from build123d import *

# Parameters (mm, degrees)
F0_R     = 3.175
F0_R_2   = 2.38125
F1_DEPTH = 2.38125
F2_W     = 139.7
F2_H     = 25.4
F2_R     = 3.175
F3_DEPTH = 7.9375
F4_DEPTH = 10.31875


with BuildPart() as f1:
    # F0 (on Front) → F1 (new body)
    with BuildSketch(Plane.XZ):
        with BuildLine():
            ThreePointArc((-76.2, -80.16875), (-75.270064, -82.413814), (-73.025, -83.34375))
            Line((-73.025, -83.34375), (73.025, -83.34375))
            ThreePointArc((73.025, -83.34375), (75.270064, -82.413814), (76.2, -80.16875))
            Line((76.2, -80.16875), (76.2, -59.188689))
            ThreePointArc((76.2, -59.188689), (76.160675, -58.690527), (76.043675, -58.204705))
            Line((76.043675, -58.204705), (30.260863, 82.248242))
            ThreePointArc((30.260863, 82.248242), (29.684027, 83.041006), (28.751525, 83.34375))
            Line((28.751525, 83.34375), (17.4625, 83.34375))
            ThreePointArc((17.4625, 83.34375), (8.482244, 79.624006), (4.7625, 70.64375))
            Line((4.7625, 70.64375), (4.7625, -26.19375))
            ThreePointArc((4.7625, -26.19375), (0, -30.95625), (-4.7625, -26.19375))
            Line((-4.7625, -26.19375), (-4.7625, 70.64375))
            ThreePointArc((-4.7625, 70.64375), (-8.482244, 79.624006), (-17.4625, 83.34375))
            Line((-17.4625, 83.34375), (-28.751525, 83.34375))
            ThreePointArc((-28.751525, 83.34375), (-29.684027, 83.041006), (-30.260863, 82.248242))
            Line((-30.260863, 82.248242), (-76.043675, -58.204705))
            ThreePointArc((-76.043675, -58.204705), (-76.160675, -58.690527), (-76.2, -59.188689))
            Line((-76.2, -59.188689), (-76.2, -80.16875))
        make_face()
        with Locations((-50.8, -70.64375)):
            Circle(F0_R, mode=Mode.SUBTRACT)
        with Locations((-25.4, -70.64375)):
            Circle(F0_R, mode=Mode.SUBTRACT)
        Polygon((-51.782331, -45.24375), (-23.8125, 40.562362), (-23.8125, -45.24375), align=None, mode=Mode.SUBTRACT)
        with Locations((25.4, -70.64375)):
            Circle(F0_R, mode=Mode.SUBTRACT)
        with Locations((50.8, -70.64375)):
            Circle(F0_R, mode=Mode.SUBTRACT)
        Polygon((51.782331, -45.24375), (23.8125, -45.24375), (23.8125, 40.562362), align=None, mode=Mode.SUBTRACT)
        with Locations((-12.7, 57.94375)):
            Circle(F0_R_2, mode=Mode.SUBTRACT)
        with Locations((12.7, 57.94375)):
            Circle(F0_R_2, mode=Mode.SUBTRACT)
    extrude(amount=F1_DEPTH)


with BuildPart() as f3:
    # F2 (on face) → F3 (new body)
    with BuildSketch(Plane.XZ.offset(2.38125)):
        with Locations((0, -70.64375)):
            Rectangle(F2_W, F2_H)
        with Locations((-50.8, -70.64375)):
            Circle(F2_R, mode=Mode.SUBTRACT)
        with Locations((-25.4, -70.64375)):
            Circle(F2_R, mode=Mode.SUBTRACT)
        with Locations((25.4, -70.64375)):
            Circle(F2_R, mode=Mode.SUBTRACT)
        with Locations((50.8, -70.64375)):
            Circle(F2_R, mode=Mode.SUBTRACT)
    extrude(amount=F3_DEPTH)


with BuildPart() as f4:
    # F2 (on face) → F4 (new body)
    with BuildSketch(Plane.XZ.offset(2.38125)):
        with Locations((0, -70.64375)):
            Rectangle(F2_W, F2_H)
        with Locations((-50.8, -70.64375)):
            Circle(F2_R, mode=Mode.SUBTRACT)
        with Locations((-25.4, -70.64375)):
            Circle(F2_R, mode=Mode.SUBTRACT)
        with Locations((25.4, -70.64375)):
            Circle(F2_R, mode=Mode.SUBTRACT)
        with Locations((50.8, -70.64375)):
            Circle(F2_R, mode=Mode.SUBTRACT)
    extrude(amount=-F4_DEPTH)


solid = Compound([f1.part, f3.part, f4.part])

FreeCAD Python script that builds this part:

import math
import FreeCAD as App
import Part
import Sketcher

V = App.Vector
Q = App.Units.Quantity


def add_polygon(sketch, points):
    """Adds a closed chain of lines whose ends are joined by coincident constraints."""
    first, n = sketch.GeometryCount, len(points)
    for a, b in zip(points, points[1:] + points[:1]):
        sketch.addGeometry(Part.LineSegment(App.Vector(*a, 0), App.Vector(*b, 0)), False)
    for i in range(n):
        sketch.addConstraint(Sketcher.Constraint("Coincident", first + i, 2, first + (i + 1) % n, 1))

doc = App.newDocument("Part")
body = doc.addObject("PartDesign::Body", "Body")

# Sketch on XZ plane
sketch1 = body.newObject("Sketcher::SketchObject", "Sketch")
sketch1.AttachmentSupport = (doc.getObject("XZ_Plane"), [""])
sketch1.MapMode = "FlatFace"
sketch1.addGeometry(Part.ArcOfCircle(Part.Circle(V(-73, -80.2, 0), V(0, 0, 1), 3.2), math.radians(-180), math.radians(-90)), False)  # 0
sketch1.addGeometry(Part.LineSegment(V(-73, -83.3, 0), V(73, -83.3, 0)), False)  # 1
sketch1.addGeometry(Part.ArcOfCircle(Part.Circle(V(73, -80.2, 0), V(0, 0, 1), 3.2), math.radians(-90), math.radians(0)), False)  # 2
sketch1.addGeometry(Part.LineSegment(V(76.2, -80.2, 0), V(76.2, -59.2, 0)), False)  # 3
sketch1.addGeometry(Part.ArcOfCircle(Part.Circle(V(73, -59.2, 0), V(0, 0, 1), 3.2), math.radians(0), math.radians(18.05)), False)  # 4
sketch1.addGeometry(Part.LineSegment(V(76, -58.2, 0), V(30.3, 82.2, 0)), False)  # 5
sketch1.addGeometry(Part.ArcOfCircle(Part.Circle(V(28.8, 81.8, 0), V(0, 0, 1), 1.6), math.radians(18), math.radians(90)), False)  # 6
sketch1.addGeometry(Part.LineSegment(V(28.8, 83.3, 0), V(17.5, 83.3, 0)), False)  # 7
sketch1.addGeometry(Part.ArcOfCircle(Part.Circle(V(17.5, 70.6, 0), V(0, 0, 1), 12.7), math.radians(90), math.radians(180)), False)  # 8
sketch1.addGeometry(Part.LineSegment(V(4.8, 70.6, 0), V(4.8, -26.2, 0)), False)  # 9
sketch1.addGeometry(Part.ArcOfCircle(Part.Circle(V(0, -26.2, 0), V(0, 0, 1), 4.8), math.radians(180), math.radians(360)), False)  # 10
sketch1.addGeometry(Part.LineSegment(V(-4.8, -26.2, 0), V(-4.8, 70.6, 0)), False)  # 11
sketch1.addGeometry(Part.ArcOfCircle(Part.Circle(V(-17.5, 70.6, 0), V(0, 0, 1), 12.7), math.radians(0), math.radians(90)), False)  # 12
sketch1.addGeometry(Part.LineSegment(V(-17.5, 83.3, 0), V(-28.8, 83.3, 0)), False)  # 13
sketch1.addGeometry(Part.ArcOfCircle(Part.Circle(V(-28.8, 81.8, 0), V(0, 0, 1), 1.6), math.radians(90), math.radians(162)), False)  # 14
sketch1.addGeometry(Part.LineSegment(V(-30.3, 82.2, 0), V(-76, -58.2, 0)), False)  # 15
sketch1.addGeometry(Part.ArcOfCircle(Part.Circle(V(-73, -59.2, 0), V(0, 0, 1), 3.2), math.radians(161.95), math.radians(180)), False)  # 16
sketch1.addGeometry(Part.LineSegment(V(-76.2, -59.2, 0), V(-76.2, -80.2, 0)), False)  # 17
sketch1.addGeometry(Part.Circle(V(-50.8, -70.6, 0), V(0, 0, 1), 3.2), False)  # 18
sketch1.addGeometry(Part.Circle(V(-25.4, -70.6, 0), V(0, 0, 1), 3.2), False)  # 19
sketch1.addGeometry(Part.Circle(V(25.4, -70.6, 0), V(0, 0, 1), 3.2), False)  # 20
sketch1.addGeometry(Part.Circle(V(50.8, -70.6, 0), V(0, 0, 1), 3.2), False)  # 21
add_polygon(sketch1, [(-23.8, -45.2), (-51.8, -45.2), (-23.8, 40.6)])  # lines 22-24
sketch1.addGeometry(Part.Circle(V(-12.7, 57.9, 0), V(0, 0, 1), 2.4), False)  # 25
add_polygon(sketch1, [(23.8, 40.6), (51.8, -45.2), (23.8, -45.2)])  # lines 26-28
sketch1.addGeometry(Part.Circle(V(12.7, 57.9, 0), V(0, 0, 1), 2.4), False)  # 29
sketch1.addConstraint([
    Sketcher.Constraint("Tangent", 0, 2, 1, 1),
    Sketcher.Constraint("Tangent", 1, 2, 2, 1),
    Sketcher.Constraint("Tangent", 2, 2, 3, 1),
    Sketcher.Constraint("Tangent", 3, 2, 4, 1),
    Sketcher.Constraint("Tangent", 4, 2, 5, 1),
    Sketcher.Constraint("Tangent", 5, 2, 6, 1),
    Sketcher.Constraint("Tangent", 6, 2, 7, 1),
    Sketcher.Constraint("Tangent", 7, 2, 8, 1),
    Sketcher.Constraint("Tangent", 8, 2, 9, 1),
    Sketcher.Constraint("Tangent", 9, 2, 10, 2),
    Sketcher.Constraint("Tangent", 10, 1, 11, 1),
    Sketcher.Constraint("Tangent", 11, 2, 12, 1),
    Sketcher.Constraint("Tangent", 12, 2, 13, 1),
    Sketcher.Constraint("Tangent", 13, 2, 14, 1),
    Sketcher.Constraint("Tangent", 14, 2, 15, 1),
    Sketcher.Constraint("Tangent", 15, 2, 16, 1),
    Sketcher.Constraint("Tangent", 16, 2, 17, 1),
    Sketcher.Constraint("Tangent", 17, 2, 0, 1),
    Sketcher.Constraint("Horizontal", 1),
    Sketcher.Constraint("Vertical", 3),
    Sketcher.Constraint("Horizontal", 7),
    Sketcher.Constraint("Vertical", 9),
    Sketcher.Constraint("Vertical", 11),
    Sketcher.Constraint("Horizontal", 13),
    Sketcher.Constraint("Vertical", 17),
    Sketcher.Constraint("Horizontal", 22),
    Sketcher.Constraint("Vertical", 24),
    Sketcher.Constraint("Horizontal", 27),
    Sketcher.Constraint("Vertical", 28),
    Sketcher.Constraint("Equal", 0, 2),
    Sketcher.Constraint("Equal", 8, 12),
    Sketcher.Constraint("Equal", 6, 14),
    Sketcher.Constraint("Equal", 4, 16),
    Sketcher.Constraint("Equal", 2, 18),
    Sketcher.Constraint("Equal", 18, 19),
    Sketcher.Constraint("Equal", 19, 20),
    Sketcher.Constraint("Equal", 20, 21),
    Sketcher.Constraint("Equal", 25, 29),
    Sketcher.Constraint("Symmetric", 8, 3, 12, 3, -2),
    Sketcher.Constraint("Symmetric", 4, 3, 16, 3, -2),
    Sketcher.Constraint("Symmetric", 19, 3, 20, 3, -2),
    Sketcher.Constraint("Symmetric", 18, 3, 21, 3, -2),
    Sketcher.Constraint("Symmetric", 25, 3, 29, 3, -2),
    Sketcher.Constraint("Symmetric", 22, 2, 26, 2, -2),
    Sketcher.Constraint("Symmetric", 23, 2, 28, 2, -2),
    Sketcher.Constraint("Parallel", 15, 23),
    Sketcher.Constraint("Parallel", 5, 26),
    Sketcher.Constraint("Horizontal", 18, 3, 19, 3),
    Sketcher.Constraint("Radius", 8, Q("0.5 in")),
    Sketcher.Constraint("Diameter", 18, Q("0.25 in")),
    Sketcher.Constraint("Diameter", 25, Q("0.1875 in")),
    Sketcher.Constraint("DistanceX", 18, 3, -1, 1, Q("2 in")),
    Sketcher.Constraint("DistanceX", 19, 3, -1, 1, Q("1 in")),
    Sketcher.Constraint("DistanceX", -1, 1, 2, 2, Q("3 in")),
    Sketcher.Constraint("Radius", 6, Q("0.0624999 in")),
    Sketcher.Constraint("Radius", 10, Q("0.1875 in")),
    Sketcher.Constraint("DistanceX", 25, 3, 29, 3, Q("1 in")),
    Sketcher.Constraint("DistanceY", 29, 3, 6, 2, Q("1 in")),
    Sketcher.Constraint("DistanceY", 18, 3, 22, 2, Q("1 in")),
    Sketcher.Constraint("DistanceY", 0, 2, 18, 3, Q("0.5 in")),
    Sketcher.Constraint("DistanceY", 9, 2, 9, 1, Q("3.8125 in")),
    Sketcher.Constraint("DistanceY", 18, 3, 10, 3, Q("1.75 in")),
    Sketcher.Constraint("DistanceX", 23, 2, 12, 3, Q("0.25 in")),
    Sketcher.Constraint("DistanceY", 0, 3, -1, 1, Q("3.15625 in")),
    Sketcher.Constraint("Radius", 4, Q("3.175013 mm")),
    Sketcher.Constraint("DistanceX", 22, 2, 22, 1, Q("27.969831 mm")),
    Sketcher.Constraint("DistanceY", 3, 1, 3, 2, Q("20.980061 mm")),
    Sketcher.Constraint("DistanceY", 24, 2, 24, 1, Q("85.806112 mm")),
])
pad1 = body.newObject("PartDesign::Pad", "Pad")
pad1.Profile = sketch1
pad1.Length = Q("0.09375 in")
body2 = doc.addObject("PartDesign::Body", "Body001")

# Sketch on XZ plane
sketch2 = body2.newObject("Sketcher::SketchObject", "Sketch001")
sketch2.AttachmentSupport = (doc.getObject("XZ_Plane001"), [""])
sketch2.MapMode = "FlatFace"
sketch2.AttachmentOffset = App.Placement(V(0, 0, 0.09375 * 25.4), App.Rotation())
add_polygon(sketch2, [(-69.8, -57.9), (-69.8, -83.3), (69.8, -83.3), (69.8, -57.9)])  # lines 0-3
sketch2.addGeometry(Part.Circle(V(-50.8, -70.6, 0), V(0, 0, 1), 3.2), False)  # 4
sketch2.addGeometry(Part.Circle(V(-25.4, -70.6, 0), V(0, 0, 1), 3.2), False)  # 5
sketch2.addGeometry(Part.Circle(V(25.4, -70.6, 0), V(0, 0, 1), 3.2), False)  # 6
sketch2.addGeometry(Part.Circle(V(50.8, -70.6, 0), V(0, 0, 1), 3.2), False)  # 7
sketch2.addConstraint([
    Sketcher.Constraint("Vertical", 0),
    Sketcher.Constraint("Horizontal", 1),
    Sketcher.Constraint("Vertical", 2),
    Sketcher.Constraint("Horizontal", 3),
    Sketcher.Constraint("Equal", 4, 5),
    Sketcher.Constraint("Equal", 5, 6),
    Sketcher.Constraint("Equal", 6, 7),
    Sketcher.Constraint("Symmetric", 5, 3, 6, 3, -2),
    Sketcher.Constraint("Symmetric", 4, 3, 7, 3, -2),
    Sketcher.Constraint("Horizontal", 4, 3, 5, 3),
    Sketcher.Constraint("Diameter", 4, Q("0.25 in")),
    Sketcher.Constraint("DistanceY", 0, 2, 0, 1, Q("1 in")),
    Sketcher.Constraint("DistanceX", 1, 1, 1, 2, Q("5.5 in")),
    Sketcher.Constraint("DistanceX", 4, 3, -1, 1, Q("2 in")),
    Sketcher.Constraint("DistanceX", 5, 3, -1, 1, Q("1 in")),
    Sketcher.Constraint("DistanceY", 0, 2, 4, 3, Q("0.5 in")),
    Sketcher.Constraint("DistanceX", 0, 2, -1, 1, Q("2.75 in")),
    Sketcher.Constraint("DistanceY", 4, 3, -1, 1, Q("2.78125 in")),
])
pad2 = body2.newObject("PartDesign::Pad", "Pad001")
pad2.Profile = sketch2
pad2.Length = Q("0.3125 in")
body3 = doc.addObject("PartDesign::Body", "Body002")

# Sketch on XZ plane
sketch3 = body3.newObject("Sketcher::SketchObject", "Sketch002")
sketch3.AttachmentSupport = (doc.getObject("XZ_Plane002"), [""])
sketch3.MapMode = "FlatFace"
sketch3.AttachmentOffset = App.Placement(V(0, 0, 0.09375 * 25.4), App.Rotation())
add_polygon(sketch3, [(-69.8, -57.9), (-69.8, -83.3), (69.8, -83.3), (69.8, -57.9)])  # lines 0-3
sketch3.addGeometry(Part.Circle(V(-50.8, -70.6, 0), V(0, 0, 1), 3.2), False)  # 4
sketch3.addGeometry(Part.Circle(V(-25.4, -70.6, 0), V(0, 0, 1), 3.2), False)  # 5
sketch3.addGeometry(Part.Circle(V(25.4, -70.6, 0), V(0, 0, 1), 3.2), False)  # 6
sketch3.addGeometry(Part.Circle(V(50.8, -70.6, 0), V(0, 0, 1), 3.2), False)  # 7
sketch3.addConstraint([
    Sketcher.Constraint("Vertical", 0),
    Sketcher.Constraint("Horizontal", 1),
    Sketcher.Constraint("Vertical", 2),
    Sketcher.Constraint("Horizontal", 3),
    Sketcher.Constraint("Equal", 4, 5),
    Sketcher.Constraint("Equal", 5, 6),
    Sketcher.Constraint("Equal", 6, 7),
    Sketcher.Constraint("Symmetric", 5, 3, 6, 3, -2),
    Sketcher.Constraint("Symmetric", 4, 3, 7, 3, -2),
    Sketcher.Constraint("Horizontal", 4, 3, 5, 3),
    Sketcher.Constraint("Diameter", 4, Q("0.25 in")),
    Sketcher.Constraint("DistanceY", 0, 2, 0, 1, Q("1 in")),
    Sketcher.Constraint("DistanceX", 1, 1, 1, 2, Q("5.5 in")),
    Sketcher.Constraint("DistanceX", 4, 3, -1, 1, Q("2 in")),
    Sketcher.Constraint("DistanceX", 5, 3, -1, 1, Q("1 in")),
    Sketcher.Constraint("DistanceY", 0, 2, 4, 3, Q("0.5 in")),
    Sketcher.Constraint("DistanceX", 0, 2, -1, 1, Q("2.75 in")),
    Sketcher.Constraint("DistanceY", 4, 3, -1, 1, Q("2.78125 in")),
])
pad3 = body3.newObject("PartDesign::Pad", "Pad002")
pad3.Profile = sketch3
pad3.Length = Q("0.40625 in")
pad3.Reversed = True

doc.recompute()
